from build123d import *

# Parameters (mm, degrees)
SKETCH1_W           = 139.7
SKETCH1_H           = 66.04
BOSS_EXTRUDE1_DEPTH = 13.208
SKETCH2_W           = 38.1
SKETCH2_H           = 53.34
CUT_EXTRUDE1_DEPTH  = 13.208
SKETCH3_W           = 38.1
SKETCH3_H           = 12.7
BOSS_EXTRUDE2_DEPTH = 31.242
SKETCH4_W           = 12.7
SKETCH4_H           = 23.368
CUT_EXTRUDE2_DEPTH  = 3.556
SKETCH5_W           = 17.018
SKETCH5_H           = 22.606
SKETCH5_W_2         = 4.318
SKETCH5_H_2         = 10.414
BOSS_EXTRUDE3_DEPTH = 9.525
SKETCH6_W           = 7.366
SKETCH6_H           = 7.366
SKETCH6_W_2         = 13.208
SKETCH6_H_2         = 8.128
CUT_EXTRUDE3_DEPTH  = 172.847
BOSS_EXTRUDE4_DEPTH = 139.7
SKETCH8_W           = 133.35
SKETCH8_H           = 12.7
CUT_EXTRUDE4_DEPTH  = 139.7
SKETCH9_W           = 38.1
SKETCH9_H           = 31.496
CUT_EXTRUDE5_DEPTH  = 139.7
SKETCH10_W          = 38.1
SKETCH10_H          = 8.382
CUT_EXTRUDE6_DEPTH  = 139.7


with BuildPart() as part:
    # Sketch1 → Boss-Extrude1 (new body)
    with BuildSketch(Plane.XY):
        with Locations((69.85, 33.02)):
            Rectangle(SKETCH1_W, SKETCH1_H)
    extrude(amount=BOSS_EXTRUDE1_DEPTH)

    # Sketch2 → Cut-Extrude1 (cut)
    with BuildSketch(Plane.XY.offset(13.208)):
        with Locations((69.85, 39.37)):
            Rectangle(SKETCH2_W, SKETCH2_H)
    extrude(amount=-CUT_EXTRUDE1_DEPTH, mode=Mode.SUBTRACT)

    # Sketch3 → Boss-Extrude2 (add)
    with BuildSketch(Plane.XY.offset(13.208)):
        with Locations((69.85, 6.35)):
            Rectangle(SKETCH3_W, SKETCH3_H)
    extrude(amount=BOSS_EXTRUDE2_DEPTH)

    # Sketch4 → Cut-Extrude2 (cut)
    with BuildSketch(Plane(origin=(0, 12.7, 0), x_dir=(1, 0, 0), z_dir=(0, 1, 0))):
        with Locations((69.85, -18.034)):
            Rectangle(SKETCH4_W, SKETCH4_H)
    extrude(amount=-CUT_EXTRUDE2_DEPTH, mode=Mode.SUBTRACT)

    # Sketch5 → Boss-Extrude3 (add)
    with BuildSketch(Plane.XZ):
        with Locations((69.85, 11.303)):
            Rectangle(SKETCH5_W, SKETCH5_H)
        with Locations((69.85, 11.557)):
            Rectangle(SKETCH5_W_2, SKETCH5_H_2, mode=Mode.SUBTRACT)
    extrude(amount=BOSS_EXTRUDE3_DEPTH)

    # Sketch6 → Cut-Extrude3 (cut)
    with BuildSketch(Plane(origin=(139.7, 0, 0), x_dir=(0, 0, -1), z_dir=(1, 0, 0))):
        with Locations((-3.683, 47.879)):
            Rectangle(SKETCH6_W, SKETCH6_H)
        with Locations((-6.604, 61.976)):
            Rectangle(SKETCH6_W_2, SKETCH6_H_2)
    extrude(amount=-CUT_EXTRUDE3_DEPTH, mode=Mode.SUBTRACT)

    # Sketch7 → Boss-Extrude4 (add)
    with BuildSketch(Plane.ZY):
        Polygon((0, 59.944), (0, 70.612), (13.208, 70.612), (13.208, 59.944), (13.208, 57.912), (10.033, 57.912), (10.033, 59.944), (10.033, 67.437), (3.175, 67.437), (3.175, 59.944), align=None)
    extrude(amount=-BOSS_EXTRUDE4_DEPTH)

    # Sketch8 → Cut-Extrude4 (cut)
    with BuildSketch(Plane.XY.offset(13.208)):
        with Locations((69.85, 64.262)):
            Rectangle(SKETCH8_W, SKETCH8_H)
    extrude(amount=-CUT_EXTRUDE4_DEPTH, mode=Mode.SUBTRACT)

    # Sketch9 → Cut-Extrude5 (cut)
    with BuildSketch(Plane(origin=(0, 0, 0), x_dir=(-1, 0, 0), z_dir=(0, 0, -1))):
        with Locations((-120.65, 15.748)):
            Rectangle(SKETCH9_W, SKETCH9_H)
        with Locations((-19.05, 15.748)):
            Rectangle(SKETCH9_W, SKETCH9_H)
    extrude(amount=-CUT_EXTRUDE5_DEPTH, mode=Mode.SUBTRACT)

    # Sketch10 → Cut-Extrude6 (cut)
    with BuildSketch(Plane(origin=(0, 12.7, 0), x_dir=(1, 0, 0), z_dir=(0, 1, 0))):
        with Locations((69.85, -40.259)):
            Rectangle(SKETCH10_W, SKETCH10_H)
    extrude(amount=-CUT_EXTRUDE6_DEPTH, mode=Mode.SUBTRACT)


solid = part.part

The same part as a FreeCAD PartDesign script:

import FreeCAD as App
import Part
import Sketcher
from FreeCAD import Vector
Q = App.Units.Quantity


def add_polygon(sketch, points):
    """Adds a closed chain of lines whose ends are joined by coincident constraints."""
    first, n = sketch.GeometryCount, len(points)
    for a, b in zip(points, points[1:] + points[:1]):
        sketch.addGeometry(Part.LineSegment(App.Vector(*a, 0), App.Vector(*b, 0)), False)
    for i in range(n):
        sketch.addConstraint(Sketcher.Constraint("Coincident", first + i, 2, first + (i + 1) % n, 1))

doc = App.newDocument("Part")
params = doc.addObject("Spreadsheet::Sheet", "Params")
for row, (alias, value) in enumerate([
    ("sketch1_width", "5.5 in"),
    ("sketch1_height", "2.6 in"),
    ("pad1_length", "0.52 in"),
    ("sketch2_width", "1.5 in"),
    ("sketch2_height", "2.1 in"),
    ("pocket1_length", "0.52 in"),
    ("sketch3_width", "1.5 in"),
    ("sketch3_height", "0.5 in"),
    ("pad2_length", "1.23 in"),
    ("sketch4_width", "0.5 in"),
    ("sketch4_height", "0.92 in"),
    ("pocket2_length", "0.14 in"),
    ("sketch5_width", "0.67 in"),
    ("sketch5_width2", "0.17 in"),
    ("sketch5_height", "0.89 in"),
    ("sketch5_height2", "0.41 in"),
    ("pad3_length", "0.375 in"),
    ("sketch6_width", "0.29 in"),
    ("sketch6_width2", "0.32 in"),
    ("sketch6_height", "0.52 in"),
    ("pocket3_length", "6.805 in"),
    ("sketch7_width", "0.5 in"),
    ("sketch7_width2", "0.42 in"),
    ("sketch7_height", "0.27 in"),
    ("sketch7_height2", "0.52 in"),
    ("sketch7_width3", "0.295 in"),
    ("pad4_length", "5.5 in"),
    ("sketch8_height", "0.5 in"),
    ("sketch8_width", "5.25 in"),
    ("pocket4_length", "5.5 in"),
    ("sketch9_width", "1.5 in"),
    ("sketch9_height", "1.24 in"),
    ("pocket5_length", "5.5 in"),
    ("sketch10_width", "1.5 in"),
    ("sketch10_height", "0.33 in"),
    ("pocket6_length", "5.5 in"),
], start=1):
    params.set(f"A{row}", alias)
    params.set(f"B{row}", "=" + value)
    params.setAlias(f"B{row}", alias)

body = doc.addObject("PartDesign::Body", "Body")

# Sketch on XY plane
sketch1 = body.newObject("Sketcher::SketchObject", "Sketch")
sketch1.AttachmentSupport = (doc.getObject("XY_Plane"), [""])
sketch1.MapMode = "FlatFace"
add_polygon(sketch1, [(0, 66.04), (0, 0), (139.7, 0), (139.7, 66.04)])  # lines 0-3
sketch1.addConstraint(Sketcher.Constraint("Vertical", 0))
sketch1.addConstraint(Sketcher.Constraint("Horizontal", 1))
sketch1.addConstraint(Sketcher.Constraint("Vertical", 2))
sketch1.addConstraint(Sketcher.Constraint("Horizontal", 3))
sketch1.addConstraint(Sketcher.Constraint("Coincident", 0, 2, -1, 1))
sketch1.addConstraint(Sketcher.Constraint("DistanceX", 1, 1, 1, 2, Q("5.5 in")))
sketch1.addConstraint(Sketcher.Constraint("DistanceY", 0, 2, 0, 1, Q("2.6 in")))
sketch1.setExpression("Constraints[9]", "Params.sketch1_width")
sketch1.setExpression("Constraints[10]", "Params.sketch1_height")
pad1 = body.newObject("PartDesign::Pad", "Pad")
pad1.Profile = sketch1
pad1.setExpression("Length", "Params.pad1_length")

# Sketch on XY plane
sketch2 = body.newObject("Sketcher::SketchObject", "Sketch001")
sketch2.AttachmentSupport = (doc.getObject("XY_Plane"), [""])
sketch2.MapMode = "FlatFace"
sketch2.AttachmentOffset = App.Placement(Vector(0, 0, 0.52 * 25.4), App.Rotation())
add_polygon(sketch2, [(50.8, 66.04), (50.8, 12.7), (88.9, 12.7), (88.9, 66.04)])  # lines 0-3
sketch2.addConstraint(Sketcher.Constraint("Vertical", 0))
sketch2.addConstraint(Sketcher.Constraint("Horizontal", 1))
sketch2.addConstraint(Sketcher.Constraint("Vertical", 2))
sketch2.addConstraint(Sketcher.Constraint("Horizontal", 3))
sketch2.addConstraint(Sketcher.Constraint("DistanceX", 1, 1, 1, 2, Q("1.5 in")))
sketch2.addConstraint(Sketcher.Constraint("DistanceY", 0, 2, 0, 1, Q("2.1 in")))
sketch2.addConstraint(Sketcher.Constraint("DistanceX", -1, 1, 0, 2, Q("2 in")))
sketch2.addConstraint(Sketcher.Constraint("DistanceY", -1, 1, 0, 2, Q("0.5 in")))
sketch2.setExpression("Constraints[8]", "Params.sketch2_width")
sketch2.setExpression("Constraints[9]", "Params.sketch2_height")
pocket1 = body.newObject("PartDesign::Pocket", "Pocket")
pocket1.Profile = sketch2
pocket1.setExpression("Length", "Params.pocket1_length")

# Sketch on XY plane
sketch3 = body.newObject("Sketcher::SketchObject", "Sketch002")
sketch3.AttachmentSupport = (doc.getObject("XY_Plane"), [""])
sketch3.MapMode = "FlatFace"
sketch3.AttachmentOffset = App.Placement(Vector(0, 0, 0.52 * 25.4), App.Rotation())
add_polygon(sketch3, [(50.8, 12.7), (50.8, 0), (88.9, 0), (88.9, 12.7)])  # lines 0-3
sketch3.addConstraint(Sketcher.Constraint("Vertical", 0))
sketch3.addConstraint(Sketcher.Constraint("Horizontal", 1))
sketch3.addConstraint(Sketcher.Constraint("Vertical", 2))
sketch3.addConstraint(Sketcher.Constraint("Horizontal", 3))
sketch3.addConstraint(Sketcher.Constraint("PointOnObject", 0, 2, -1))
sketch3.addConstraint(Sketcher.Constraint("DistanceX", 1, 1, 1, 2, Q("1.5 in")))
sketch3.addConstraint(Sketcher.Constraint("DistanceY", 0, 2, 0, 1, Q("0.5 in")))
sketch3.addConstraint(Sketcher.Constraint("DistanceX", -1, 1, 0, 2, Q("2 in")))
sketch3.setExpression("Constraints[9]", "Params.sketch3_width")
sketch3.setExpression("Constraints[10]", "Params.sketch3_height")
pad2 = body.newObject("PartDesign::Pad", "Pad001")
pad2.Profile = sketch3
pad2.setExpression("Length", "Params.pad2_length")

# Sketch on XZ plane
sketch4 = body.newObject("Sketcher::SketchObject", "Sketch003")
sketch4.AttachmentSupport = (doc.getObject("XZ_Plane"), [""])
sketch4.MapMode = "FlatFace"
sketch4.AttachmentOffset = App.Placement(Vector(0, 0, -0.5 * 25.4), App.Rotation())
add_polygon(sketch4, [(63.5, 6.35), (63.5, 29.718), (76.2, 29.718), (76.2, 6.35)])  # lines 0-3
sketch4.addConstraint(Sketcher.Constraint("Vertical", 0))
sketch4.addConstraint(Sketcher.Constraint("Horizontal", 1))
sketch4.addConstraint(Sketcher.Constraint("Vertical", 2))
sketch4.addConstraint(Sketcher.Constraint("Horizontal", 3))
sketch4.addConstraint(Sketcher.Constraint("DistanceX", 1, 1, 1, 2, Q("0.5 in")))
sketch4.addConstraint(Sketcher.Constraint("DistanceX", -1, 1, 1, 2, Q("3 in")))
sketch4.addConstraint(Sketcher.Constraint("DistanceY", 0, 1, 0, 2, Q("0.92 in")))
sketch4.addConstraint(Sketcher.Constraint("DistanceY", -1, 1, 0, 2, Q("1.17 in")))
sketch4.setExpression("Constraints[8]", "Params.sketch4_width")
sketch4.setExpression("Constraints[10]", "Params.sketch4_height")
pocket2 = body.newObject("PartDesign::Pocket", "Pocket001")
pocket2.Profile = sketch4
pocket2.setExpression("Length", "Params.pocket2_length")
pocket2.Reversed = True

# Sketch on XZ plane
sketch5 = body.newObject("Sketcher::SketchObject", "Sketch004")
sketch5.AttachmentSupport = (doc.getObject("XZ_Plane"), [""])
sketch5.MapMode = "FlatFace"
add_polygon(sketch5, [(61.341, 22.606), (61.341, 0), (78.359, 0), (78.359, 22.606)])  # lines 0-3
add_polygon(sketch5, [(72.009, 6.35), (67.691, 6.35), (67.691, 16.764), (72.009, 16.764)])  # lines 4-7
sketch5.addConstraint(Sketcher.Constraint("Vertical", 0))
sketch5.addConstraint(Sketcher.Constraint("Horizontal", 1))
sketch5.addConstraint(Sketcher.Constraint("Vertical", 2))
sketch5.addConstraint(Sketcher.Constraint("Horizontal", 3))
sketch5.addConstraint(Sketcher.Constraint("Horizontal", 4))
sketch5.addConstraint(Sketcher.Constraint("Vertical", 5))
sketch5.addConstraint(Sketcher.Constraint("Horizontal", 6))
sketch5.addConstraint(Sketcher.Constraint("Vertical", 7))
sketch5.addConstraint(Sketcher.Constraint("PointOnObject", 0, 2, -1))
sketch5.addConstraint(Sketcher.Constraint("DistanceX", 1, 1, 1, 2, Q("0.67 in")))
sketch5.addConstraint(Sketcher.Constraint("DistanceX", 4, 2, 4, 1, Q("0.17 in")))
sketch5.addConstraint(Sketcher.Constraint("DistanceY", 0, 2, 0, 1, Q("0.89 in")))
sketch5.addConstraint(Sketcher.Constraint("DistanceY", 5, 1, 5, 2, Q("0.41 in")))
sketch5.addConstraint(Sketcher.Constraint("DistanceY", -1, 1, 4, 2, Q("0.25 in")))
sketch5.addConstraint(Sketcher.Constraint("DistanceX", 0, 2, 4, 2, Q("0.25 in")))
sketch5.addConstraint(Sketcher.Constraint("DistanceX", -1, 1, 0, 2, Q("2.415 in")))
sketch5.setExpression("Constraints[17]", "Params.sketch5_width")
sketch5.setExpression("Constraints[18]", "Params.sketch5_width2")
sketch5.setExpression("Constraints[19]", "Params.sketch5_height")
sketch5.setExpression("Constraints[20]", "Params.sketch5_height2")
pad3 = body.newObject("PartDesign::Pad", "Pad002")
pad3.Profile = sketch5
pad3.setExpression("Length", "Params.pad3_length")

# Sketch on YZ plane
sketch6 = body.newObject("Sketcher::SketchObject", "Sketch005")
sketch6.AttachmentSupport = (doc.getObject("YZ_Plane"), [""])
sketch6.MapMode = "FlatFace"
sketch6.AttachmentOffset = App.Placement(Vector(0, 0, 5.5 * 25.4), App.Rotation())
add_polygon(sketch6, [(51.562, 7.366), (44.196, 7.366), (44.196, 0), (51.562, 0)])  # lines 0-3
add_polygon(sketch6, [(66.04, 13.208), (57.912, 13.208), (57.912, 0), (66.04, 0)])  # lines 4-7
sketch6.addConstraint(Sketcher.Constraint("Horizontal", 0))
sketch6.addConstraint(Sketcher.Constraint("Vertical", 1))
sketch6.addConstraint(Sketcher.Constraint("Horizontal", 2))
sketch6.addConstraint(Sketcher.Constraint("Vertical", 3))
sketch6.addConstraint(Sketcher.Constraint("Horizontal", 4))
sketch6.addConstraint(Sketcher.Constraint("Vertical", 5))
sketch6.addConstraint(Sketcher.Constraint("Horizontal", 6))
sketch6.addConstraint(Sketcher.Constraint("Vertical", 7))
sketch6.addConstraint(Sketcher.Constraint("PointOnObject", 1, 2, -1))
sketch6.addConstraint(Sketcher.Constraint("PointOnObject", 5, 2, -1))
sketch6.addConstraint(Sketcher.Constraint("Equal", 2, 1))
sketch6.addConstraint(Sketcher.Constraint("DistanceX", 0, 2, 0, 1, Q("0.29 in")))
sketch6.addConstraint(Sketcher.Constraint("DistanceX", 4, 2, 4, 1, Q("0.32 in")))
sketch6.addConstraint(Sketcher.Constraint("DistanceY", 5, 2, 5, 1, Q("0.52 in")))
sketch6.addConstraint(Sketcher.Constraint("DistanceX", -1, 1, 6, 2, Q("2.6 in")))
sketch6.addConstraint(Sketcher.Constraint("DistanceX", -1, 1, 0, 2, Q("1.74 in")))
sketch6.setExpression("Constraints[19]", "Params.sketch6_width")
sketch6.setExpression("Constraints[20]", "Params.sketch6_width2")
sketch6.setExpression("Constraints[21]", "Params.sketch6_height")
pocket3 = body.newObject("PartDesign::Pocket", "Pocket002")
pocket3.Profile = sketch6
pocket3.setExpression("Length", "Params.pocket3_length")

# Sketch on YZ plane
sketch7 = body.newObject("Sketcher::SketchObject", "Sketch006")
sketch7.AttachmentSupport = (doc.getObject("YZ_Plane"), [""])
sketch7.MapMode = "FlatFace"
add_polygon(sketch7, [(70.612, 0), (59.944, 0), (59.944, 3.175), (67.437, 3.175), (67.437, 10.033), (57.912, 10.033), (57.912, 13.208), (70.612, 13.208)])  # lines 0-7
sketch7.addConstraint(Sketcher.Constraint("Horizontal", 0))
sketch7.addConstraint(Sketcher.Constraint("Vertical", 1))
sketch7.addConstraint(Sketcher.Constraint("Horizontal", 2))
sketch7.addConstraint(Sketcher.Constraint("Vertical", 3))
sketch7.addConstraint(Sketcher.Constraint("Horizontal", 4))
sketch7.addConstraint(Sketcher.Constraint("Vertical", 5))
sketch7.addConstraint(Sketcher.Constraint("Horizontal", 6))
sketch7.addConstraint(Sketcher.Constraint("Vertical", 7))
sketch7.addConstraint(Sketcher.Constraint("PointOnObject", 0, 2, -1))
sketch7.addConstraint(Sketcher.Constraint("Equal", 1, 5))
sketch7.addConstraint(Sketcher.Constraint("DistanceX", 6, 1, 6, 2, Q("0.5 in")))
sketch7.addConstraint(Sketcher.Constraint("DistanceX", 0, 2, 0, 1, Q("0.42 in")))
sketch7.addConstraint(Sketcher.Constraint("DistanceY", 3, 1, 3, 2, Q("0.27 in")))
sketch7.addConstraint(Sketcher.Constraint("DistanceY", 7, 2, 7, 1, Q("0.52 in")))
sketch7.addConstraint(Sketcher.Constraint("DistanceX", 2, 1, 2, 2, Q("0.295 in")))
sketch7.addConstraint(Sketcher.Constraint("DistanceX", -1, 1, 0, 2, Q("2.36 in")))
sketch7.setExpression("Constraints[18]", "Params.sketch7_width")
sketch7.setExpression("Constraints[19]", "Params.sketch7_width2")
sketch7.setExpression("Constraints[20]", "Params.sketch7_height")
sketch7.setExpression("Constraints[21]", "Params.sketch7_height2")
sketch7.setExpression("Constraints[22]", "Params.sketch7_width3")
pad4 = body.newObject("PartDesign::Pad", "Pad003")
pad4.Profile = sketch7
pad4.setExpression("Length", "Params.pad4_length")

# Sketch on XY plane
sketch8 = body.newObject("Sketcher::SketchObject", "Sketch007")
sketch8.AttachmentSupport = (doc.getObject("XY_Plane"), [""])
sketch8.MapMode = "FlatFace"
sketch8.AttachmentOffset = App.Placement(Vector(0, 0, 0.52 * 25.4), App.Rotation())
add_polygon(sketch8, [(3.175, 70.612), (3.175, 57.912), (136.525, 57.912), (136.525, 70.612)])  # lines 0-3
sketch8.addConstraint(Sketcher.Constraint("Vertical", 0))
sketch8.addConstraint(Sketcher.Constraint("Horizontal", 1))
sketch8.addConstraint(Sketcher.Constraint("Vertical", 2))
sketch8.addConstraint(Sketcher.Constraint("Horizontal", 3))
sketch8.addConstraint(Sketcher.Constraint("DistanceY", 0, 2, 0, 1, Q("0.5 in")))
sketch8.addConstraint(Sketcher.Constraint("DistanceX", 1, 1, 1, 2, Q("5.25 in")))
sketch8.addConstraint(Sketcher.Constraint("DistanceY", -1, 1, 0, 2, Q("2.28 in")))
sketch8.addConstraint(Sketcher.Constraint("DistanceX", -1, 1, 0, 2, Q("0.125 in")))
sketch8.setExpression("Constraints[8]", "Params.sketch8_height")
sketch8.setExpression("Constraints[9]", "Params.sketch8_width")
pocket4 = body.newObject("PartDesign::Pocket", "Pocket003")
pocket4.Profile = sketch8
pocket4.setExpression("Length", "Params.pocket4_length")

# Sketch on XY plane
sketch9 = body.newObject("Sketcher::SketchObject", "Sketch008")
sketch9.AttachmentSupport = (doc.getObject("XY_Plane"), [""])
sketch9.MapMode = "FlatFace"
add_polygon(sketch9, [(139.7, 31.496), (139.7, 0), (101.6, 0), (101.6, 31.496)])  # lines 0-3
add_polygon(sketch9, [(38.1, 31.496), (38.1, 0), (0, 0), (0, 31.496)])  # lines 4-7
sketch9.addConstraint(Sketcher.Constraint("Vertical", 0))
sketch9.addConstraint(Sketcher.Constraint("Horizontal", 1))
sketch9.addConstraint(Sketcher.Constraint("Vertical", 2))
sketch9.addConstraint(Sketcher.Constraint("Horizontal", 3))
sketch9.addConstraint(Sketcher.Constraint("Vertical", 4))
sketch9.addConstraint(Sketcher.Constraint("Horizontal", 5))
sketch9.addConstraint(Sketcher.Constraint("Vertical", 6))
sketch9.addConstraint(Sketcher.Constraint("Horizontal", 7))
sketch9.addConstraint(Sketcher.Constraint("Coincident", 5, 2, -1, 1))
sketch9.addConstraint(Sketcher.Constraint("PointOnObject", 0, 2, -1))
sketch9.addConstraint(Sketcher.Constraint("Horizontal", 3, 2, 6, 2))
sketch9.addConstraint(Sketcher.Constraint("Equal", 3, 5))
sketch9.addConstraint(Sketcher.Constraint("DistanceX", 1, 2, 1, 1, Q("1.5 in")))
sketch9.addConstraint(Sketcher.Constraint("DistanceX", -1, 1, 1, 2, Q("4 in")))
sketch9.addConstraint(Sketcher.Constraint("DistanceY", 0, 2, 0, 1, Q("1.24 in")))
sketch9.setExpression("Constraints[20]", "Params.sketch9_width")
sketch9.setExpression("Constraints[22]", "Params.sketch9_height")
pocket5 = body.newObject("PartDesign::Pocket", "Pocket004")
pocket5.Profile = sketch9
pocket5.setExpression("Length", "Params.pocket5_length")
pocket5.Reversed = True

# Sketch on XZ plane
sketch10 = body.newObject("Sketcher::SketchObject", "Sketch009")
sketch10.AttachmentSupport = (doc.getObject("XZ_Plane"), [""])
sketch10.MapMode = "FlatFace"
sketch10.AttachmentOffset = App.Placement(Vector(0, 0, -0.5 * 25.4), App.Rotation())
add_polygon(sketch10, [(50.8, 36.068), (50.8, 44.45), (88.9, 44.45), (88.9, 36.068)])  # lines 0-3
sketch10.addConstraint(Sketcher.Constraint("Vertical", 0))
sketch10.addConstraint(Sketcher.Constraint("Horizontal", 1))
sketch10.addConstraint(Sketcher.Constraint("Vertical", 2))
sketch10.addConstraint(Sketcher.Constraint("Horizontal", 3))
sketch10.addConstraint(Sketcher.Constraint("DistanceX", 1, 1, 1, 2, Q("1.5 in")))
sketch10.addConstraint(Sketcher.Constraint("DistanceX", -1, 1, 0, 2, Q("2 in")))
sketch10.addConstraint(Sketcher.Constraint("DistanceY", 0, 1, 0, 2, Q("0.33 in")))
sketch10.addConstraint(Sketcher.Constraint("DistanceY", -1, 1, 0, 2, Q("1.75 in")))
sketch10.setExpression("Constraints[8]", "Params.sketch10_width")
sketch10.setExpression("Constraints[10]", "Params.sketch10_height")
pocket6 = body.newObject("PartDesign::Pocket", "Pocket005")
pocket6.Profile = sketch10
pocket6.setExpression("Length", "Params.pocket6_length")
pocket6.Reversed = True

doc.recompute()
